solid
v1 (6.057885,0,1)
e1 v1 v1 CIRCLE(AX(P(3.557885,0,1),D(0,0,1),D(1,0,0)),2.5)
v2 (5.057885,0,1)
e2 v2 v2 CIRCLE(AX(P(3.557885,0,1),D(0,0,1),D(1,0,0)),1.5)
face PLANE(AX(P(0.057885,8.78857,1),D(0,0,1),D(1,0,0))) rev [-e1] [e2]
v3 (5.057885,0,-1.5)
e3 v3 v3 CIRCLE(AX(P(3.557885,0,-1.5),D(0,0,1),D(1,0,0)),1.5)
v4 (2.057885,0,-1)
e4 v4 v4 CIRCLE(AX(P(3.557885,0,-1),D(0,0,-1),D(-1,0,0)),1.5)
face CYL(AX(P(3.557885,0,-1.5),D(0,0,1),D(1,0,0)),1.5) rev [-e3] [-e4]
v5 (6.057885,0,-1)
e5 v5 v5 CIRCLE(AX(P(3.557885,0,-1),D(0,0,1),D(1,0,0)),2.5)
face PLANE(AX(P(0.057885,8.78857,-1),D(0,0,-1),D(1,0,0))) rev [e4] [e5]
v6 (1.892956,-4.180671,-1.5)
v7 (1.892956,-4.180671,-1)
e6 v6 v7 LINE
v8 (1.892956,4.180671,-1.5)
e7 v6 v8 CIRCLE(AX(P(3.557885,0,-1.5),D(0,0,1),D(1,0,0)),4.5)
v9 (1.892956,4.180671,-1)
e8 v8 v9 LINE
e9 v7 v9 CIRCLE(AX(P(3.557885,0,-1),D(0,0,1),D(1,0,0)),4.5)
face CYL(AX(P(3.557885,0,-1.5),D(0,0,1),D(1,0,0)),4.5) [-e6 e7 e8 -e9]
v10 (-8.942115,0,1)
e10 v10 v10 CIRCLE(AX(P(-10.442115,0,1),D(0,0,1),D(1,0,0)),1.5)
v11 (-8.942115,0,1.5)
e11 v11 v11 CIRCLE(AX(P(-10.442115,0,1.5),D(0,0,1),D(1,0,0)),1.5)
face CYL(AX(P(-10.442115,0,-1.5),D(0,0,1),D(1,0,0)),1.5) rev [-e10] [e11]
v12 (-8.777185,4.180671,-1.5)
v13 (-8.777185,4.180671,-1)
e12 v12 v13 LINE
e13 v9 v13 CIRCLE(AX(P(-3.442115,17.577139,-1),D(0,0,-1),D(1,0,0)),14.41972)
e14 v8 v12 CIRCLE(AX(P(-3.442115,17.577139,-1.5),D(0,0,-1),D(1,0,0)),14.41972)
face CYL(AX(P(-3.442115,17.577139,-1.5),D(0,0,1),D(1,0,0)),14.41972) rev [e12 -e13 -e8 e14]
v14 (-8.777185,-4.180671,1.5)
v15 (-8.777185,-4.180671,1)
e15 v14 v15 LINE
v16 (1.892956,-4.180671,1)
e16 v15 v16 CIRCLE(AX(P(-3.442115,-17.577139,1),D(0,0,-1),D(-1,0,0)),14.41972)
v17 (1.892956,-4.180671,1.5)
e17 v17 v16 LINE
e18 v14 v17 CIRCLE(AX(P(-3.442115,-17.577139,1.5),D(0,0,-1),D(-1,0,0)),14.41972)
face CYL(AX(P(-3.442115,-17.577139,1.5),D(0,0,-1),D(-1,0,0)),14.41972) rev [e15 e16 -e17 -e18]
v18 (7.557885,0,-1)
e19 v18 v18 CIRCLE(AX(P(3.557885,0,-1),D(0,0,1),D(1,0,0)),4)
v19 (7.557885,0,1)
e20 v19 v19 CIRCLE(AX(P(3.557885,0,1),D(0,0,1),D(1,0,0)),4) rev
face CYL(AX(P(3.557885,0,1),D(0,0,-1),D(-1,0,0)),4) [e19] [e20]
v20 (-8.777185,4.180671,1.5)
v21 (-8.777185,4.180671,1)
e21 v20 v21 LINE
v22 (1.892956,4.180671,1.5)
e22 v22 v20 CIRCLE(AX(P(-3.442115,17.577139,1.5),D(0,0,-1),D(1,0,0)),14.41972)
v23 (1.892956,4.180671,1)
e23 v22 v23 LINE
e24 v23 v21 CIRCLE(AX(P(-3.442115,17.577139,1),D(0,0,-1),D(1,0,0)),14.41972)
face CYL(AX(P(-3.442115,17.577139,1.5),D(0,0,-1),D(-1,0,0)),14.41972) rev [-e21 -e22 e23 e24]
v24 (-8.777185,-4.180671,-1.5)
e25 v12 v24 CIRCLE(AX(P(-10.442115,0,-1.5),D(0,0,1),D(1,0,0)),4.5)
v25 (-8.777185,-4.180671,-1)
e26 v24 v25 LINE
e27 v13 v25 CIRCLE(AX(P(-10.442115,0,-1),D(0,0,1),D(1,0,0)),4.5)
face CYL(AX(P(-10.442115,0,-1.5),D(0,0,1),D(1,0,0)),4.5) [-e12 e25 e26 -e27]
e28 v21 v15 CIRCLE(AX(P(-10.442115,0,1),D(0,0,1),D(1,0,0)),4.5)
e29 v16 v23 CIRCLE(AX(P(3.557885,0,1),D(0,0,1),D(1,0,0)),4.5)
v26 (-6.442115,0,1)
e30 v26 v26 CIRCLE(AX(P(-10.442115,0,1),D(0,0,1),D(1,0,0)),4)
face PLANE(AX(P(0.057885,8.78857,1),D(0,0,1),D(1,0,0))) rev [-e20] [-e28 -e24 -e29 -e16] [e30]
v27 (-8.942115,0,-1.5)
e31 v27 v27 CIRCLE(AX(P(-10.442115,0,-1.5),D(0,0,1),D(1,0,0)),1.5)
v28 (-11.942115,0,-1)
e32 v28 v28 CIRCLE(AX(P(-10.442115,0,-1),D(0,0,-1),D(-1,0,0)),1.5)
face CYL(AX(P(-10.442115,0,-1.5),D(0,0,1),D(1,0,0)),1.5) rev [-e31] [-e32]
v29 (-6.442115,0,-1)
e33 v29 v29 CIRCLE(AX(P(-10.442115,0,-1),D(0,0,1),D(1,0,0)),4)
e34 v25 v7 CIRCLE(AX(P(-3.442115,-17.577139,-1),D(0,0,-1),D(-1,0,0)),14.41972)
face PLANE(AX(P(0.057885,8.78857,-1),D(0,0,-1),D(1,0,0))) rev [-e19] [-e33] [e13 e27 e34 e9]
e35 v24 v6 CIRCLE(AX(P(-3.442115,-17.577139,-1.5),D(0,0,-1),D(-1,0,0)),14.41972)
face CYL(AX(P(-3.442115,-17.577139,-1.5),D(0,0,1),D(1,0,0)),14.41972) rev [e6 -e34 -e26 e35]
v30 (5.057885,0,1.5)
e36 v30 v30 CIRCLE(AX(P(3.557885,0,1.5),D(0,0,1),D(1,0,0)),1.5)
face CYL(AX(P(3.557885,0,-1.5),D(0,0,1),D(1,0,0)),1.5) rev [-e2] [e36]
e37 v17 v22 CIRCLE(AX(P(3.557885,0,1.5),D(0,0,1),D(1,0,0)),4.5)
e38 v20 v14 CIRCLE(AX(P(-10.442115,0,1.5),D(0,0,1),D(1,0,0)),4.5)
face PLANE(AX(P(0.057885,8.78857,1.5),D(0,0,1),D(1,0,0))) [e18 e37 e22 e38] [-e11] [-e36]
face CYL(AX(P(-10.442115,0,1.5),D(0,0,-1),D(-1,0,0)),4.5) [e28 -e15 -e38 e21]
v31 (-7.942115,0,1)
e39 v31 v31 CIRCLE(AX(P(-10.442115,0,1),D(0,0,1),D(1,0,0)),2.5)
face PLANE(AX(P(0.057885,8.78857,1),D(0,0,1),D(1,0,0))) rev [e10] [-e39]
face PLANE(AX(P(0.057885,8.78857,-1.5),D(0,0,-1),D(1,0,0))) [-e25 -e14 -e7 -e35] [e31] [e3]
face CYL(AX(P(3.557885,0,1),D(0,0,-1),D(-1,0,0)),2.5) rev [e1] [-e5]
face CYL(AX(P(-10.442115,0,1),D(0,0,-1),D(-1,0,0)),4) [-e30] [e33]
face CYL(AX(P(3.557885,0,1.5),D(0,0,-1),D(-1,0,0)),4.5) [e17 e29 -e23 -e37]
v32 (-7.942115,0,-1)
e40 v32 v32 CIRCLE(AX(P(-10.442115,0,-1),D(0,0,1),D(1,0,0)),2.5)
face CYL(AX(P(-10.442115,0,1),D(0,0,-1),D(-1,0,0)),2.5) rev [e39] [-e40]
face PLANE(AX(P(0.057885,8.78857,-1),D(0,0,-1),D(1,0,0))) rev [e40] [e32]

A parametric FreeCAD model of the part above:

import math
import FreeCAD as App
import Part
import Sketcher

doc = App.newDocument("Part")
body = doc.addObject("PartDesign::Body", "Body")

sketch1 = body.newObject("Sketcher::SketchObject", "Sketch")
sketch1.AttachmentSupport = (doc.getObject("XY_Plane"), [""])
sketch1.MapMode = "FlatFace"
sketch1.addGeometry(Part.Circle(App.Vector(-10.4, 0, 0), App.Vector(0, 0, 1), 4), False)
sketch1.addGeometry(Part.Circle(App.Vector(-10.4, 0, 0), App.Vector(0, 0, 1), 2.5), False)
sketch1.addConstraint(Sketcher.Constraint("Coincident", 1, 3, 0, 3))
sketch1.addConstraint(Sketcher.Constraint("PointOnObject", 0, 3, -1))
sketch1.addConstraint(Sketcher.Constraint("Diameter", 0, 8.0))
sketch1.addConstraint(Sketcher.Constraint("Diameter", 1, 5.0))
sketch1.addConstraint(Sketcher.Constraint("DistanceX", 0, 3, -1, 1, 10.442115))
pad1 = body.newObject("PartDesign::Pad", "Pad")
pad1.Profile = sketch1
pad1.Length = 2
pad1.Midplane = True
body2 = doc.addObject("PartDesign::Body", "Body001")

sketch2 = body2.newObject("Sketcher::SketchObject", "Sketch001")
sketch2.AttachmentSupport = (doc.getObject("XY_Plane001"), [""])
sketch2.MapMode = "FlatFace"
sketch2.addGeometry(Part.Circle(App.Vector(3.6, 0, 0), App.Vector(0, 0, 1), 4), False)
sketch2.addGeometry(Part.Circle(App.Vector(3.6, 0, 0), App.Vector(0, 0, 1), 2.5), False)
sketch2.addConstraint(Sketcher.Constraint("Coincident", 1, 3, 0, 3))
sketch2.addConstraint(Sketcher.Constraint("PointOnObject", 0, 3, -1))
sketch2.addConstraint(Sketcher.Constraint("Diameter", 0, 8.0))
sketch2.addConstraint(Sketcher.Constraint("Diameter", 1, 5.0))
sketch2.addConstraint(Sketcher.Constraint("DistanceX", -1, 1, 0, 3, 3.557885))
pad2 = body2.newObject("PartDesign::Pad", "Pad001")
pad2.Profile = sketch2
pad2.Length = 2
pad2.Midplane = True
body.AllowCompound = True
doc.recompute()

boolean = body.newObject("PartDesign::Boolean", "Boolean")
boolean.Type = "Fuse"
boolean.addObjects([body2])

sketch3 = body.newObject("Sketcher::SketchObject", "Sketch002")
sketch3.AttachmentSupport = (doc.getObject("XY_Plane"), [""])
sketch3.MapMode = "FlatFace"
sketch3.AttachmentOffset = App.Placement(App.Vector(0, 0, 1), App.Rotation())
sketch3.addGeometry(Part.ArcOfCircle(Part.Circle(App.Vector(-10.4, 0, 0), App.Vector(0, 0, 1), 4.5), math.radians(68), math.radians(292)), False)
sketch3.addGeometry(Part.ArcOfCircle(Part.Circle(App.Vector(-3.4, -17.6, 0), App.Vector(0, 0, 1), 14.4), math.radians(68), math.radians(112)), False)
sketch3.addGeometry(Part.ArcOfCircle(Part.Circle(App.Vector(3.6, 0, 0), App.Vector(0, 0, 1), 4.5), math.radians(-112), math.radians(112)), False)
sketch3.addGeometry(Part.ArcOfCircle(Part.Circle(App.Vector(-3.4, 17.6, 0), App.Vector(0, 0, 1), 14.4), math.radians(-112), math.radians(-68)), False)
sketch3.addConstraint(Sketcher.Constraint("Tangent", 0, 2, 1, 2))
sketch3.addConstraint(Sketcher.Constraint("Tangent", 1, 1, 2, 1))
sketch3.addConstraint(Sketcher.Constraint("Tangent", 2, 2, 3, 2))
sketch3.addConstraint(Sketcher.Constraint("Tangent", 3, 1, 0, 1))
sketch3.addConstraint(Sketcher.Constraint("Equal", 0, 2))
sketch3.addConstraint(Sketcher.Constraint("Equal", 1, 3))
sketch3.addConstraint(Sketcher.Constraint("Symmetric", 1, 3, 3, 3, -1))
sketch3.addConstraint(Sketcher.Constraint("Radius", 0, 4.5))
sketch3.addConstraint(Sketcher.Constraint("DistanceX", 0, 3, 1, 3, 7.0))
sketch3.addConstraint(Sketcher.Constraint("Radius", 1, 14.41972))
sketch3.addConstraint(Sketcher.Constraint("DistanceX", 0, 3, -1, 1, 10.442115))
pad3 = body.newObject("PartDesign::Pad", "Pad002")
pad3.Profile = sketch3
pad3.Length = 0.5
doc.recompute()

mirrored = body.newObject("PartDesign::Mirrored", "Mirrored")
mirrored.Originals = [pad3]
mirrored.MirrorPlane = (doc.getObject("XY_Plane"), [""])
body.Tip = mirrored

sketch4 = body.newObject("Sketcher::SketchObject", "Sketch003")
sketch4.AttachmentSupport = (doc.getObject("XY_Plane"), [""])
sketch4.MapMode = "FlatFace"
sketch4.addGeometry(Part.Circle(App.Vector(-10.4, 0, 0), App.Vector(0, 0, 1), 1.5), False)
sketch4.addGeometry(Part.Circle(App.Vector(3.6, 0, 0), App.Vector(0, 0, 1), 1.5), False)
sketch4.addConstraint(Sketcher.Constraint("Equal", 0, 1))
sketch4.addConstraint(Sketcher.Constraint("PointOnObject", 0, 3, -1))
sketch4.addConstraint(Sketcher.Constraint("PointOnObject", 1, 3, -1))
sketch4.addConstraint(Sketcher.Constraint("Diameter", 0, 3.0))
sketch4.addConstraint(Sketcher.Constraint("DistanceX", 0, 3, 1, 3, 14.0))
sketch4.addConstraint(Sketcher.Constraint("DistanceX", 0, 3, -1, 1, 10.442115))
pocket1 = body.newObject("PartDesign::Pocket", "Pocket")
pocket1.Profile = sketch4
pocket1.Type = "ThroughAll"
pocket1.Midplane = True

doc.recompute()
